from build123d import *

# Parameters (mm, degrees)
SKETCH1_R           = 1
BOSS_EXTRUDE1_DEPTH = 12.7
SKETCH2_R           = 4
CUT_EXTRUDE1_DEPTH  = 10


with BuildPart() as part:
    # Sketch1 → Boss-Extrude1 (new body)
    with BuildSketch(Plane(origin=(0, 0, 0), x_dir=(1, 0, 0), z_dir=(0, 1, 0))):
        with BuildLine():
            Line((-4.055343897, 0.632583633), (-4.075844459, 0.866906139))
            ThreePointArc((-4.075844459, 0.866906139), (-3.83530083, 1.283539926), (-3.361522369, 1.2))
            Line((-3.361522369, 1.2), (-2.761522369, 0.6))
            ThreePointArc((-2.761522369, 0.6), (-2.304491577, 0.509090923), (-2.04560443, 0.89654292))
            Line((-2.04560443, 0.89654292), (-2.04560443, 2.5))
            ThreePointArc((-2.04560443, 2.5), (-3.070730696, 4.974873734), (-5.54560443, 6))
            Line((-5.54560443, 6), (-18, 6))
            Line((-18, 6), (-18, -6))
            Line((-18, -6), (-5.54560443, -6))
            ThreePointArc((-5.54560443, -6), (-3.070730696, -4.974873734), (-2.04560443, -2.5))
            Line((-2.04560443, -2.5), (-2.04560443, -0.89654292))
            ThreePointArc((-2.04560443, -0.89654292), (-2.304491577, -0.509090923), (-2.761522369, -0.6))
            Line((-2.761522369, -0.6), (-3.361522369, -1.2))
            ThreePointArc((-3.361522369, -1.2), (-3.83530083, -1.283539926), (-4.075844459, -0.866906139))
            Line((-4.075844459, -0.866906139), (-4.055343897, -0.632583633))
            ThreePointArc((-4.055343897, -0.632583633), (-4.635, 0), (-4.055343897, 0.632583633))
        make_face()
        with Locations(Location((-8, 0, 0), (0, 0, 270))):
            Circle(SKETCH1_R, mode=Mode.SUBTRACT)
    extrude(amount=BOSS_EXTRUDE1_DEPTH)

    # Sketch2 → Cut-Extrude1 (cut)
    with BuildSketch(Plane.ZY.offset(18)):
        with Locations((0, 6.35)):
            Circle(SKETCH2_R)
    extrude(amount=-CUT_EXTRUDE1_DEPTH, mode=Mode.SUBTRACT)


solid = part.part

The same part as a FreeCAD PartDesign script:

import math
import FreeCAD as App
import Part
import Sketcher
Q = App.Units.Quantity

doc = App.newDocument("Part")
body = doc.addObject("PartDesign::Body", "Body")

# Sketch on XZ plane
sketch1 = body.newObject("Sketcher::SketchObject", "Sketch")
sketch1.AttachmentSupport = (doc.getObject("XZ_Plane"), [""])
sketch1.MapMode = "FlatFace"
sketch1.addGeometry([
    Part.LineSegment(App.Vector(-4.06, -0.63, 0), App.Vector(-4.08, -0.87, 0)),  # 0
    Part.ArcOfCircle(Part.Circle(App.Vector(-3.66, -0.9, 0), App.Vector(0, 0, 1), 0.42), math.radians(175), math.radians(315)),  # 1
    Part.LineSegment(App.Vector(-3.36, -1.2, 0), App.Vector(-2.76, -0.6, 0)),  # 2
    Part.ArcOfCircle(Part.Circle(App.Vector(-2.46, -0.9, 0), App.Vector(0, 0, 1), 0.42), math.radians(0), math.radians(135)),  # 3
    Part.LineSegment(App.Vector(-2.05, -0.9, 0), App.Vector(-2.05, -2.5, 0)),  # 4
    Part.ArcOfCircle(Part.Circle(App.Vector(-5.55, -2.5, 0), App.Vector(0, 0, 1), 3.5), math.radians(-90), math.radians(0)),  # 5
    Part.LineSegment(App.Vector(-5.55, -6, 0), App.Vector(-18, -6, 0)),  # 6
    Part.LineSegment(App.Vector(-18, -6, 0), App.Vector(-18, 6, 0)),  # 7
    Part.LineSegment(App.Vector(-18, 6, 0), App.Vector(-5.55, 6, 0)),  # 8
    Part.ArcOfCircle(Part.Circle(App.Vector(-5.55, 2.5, 0), App.Vector(0, 0, 1), 3.5), math.radians(0), math.radians(90)),  # 9
    Part.LineSegment(App.Vector(-2.05, 2.5, 0), App.Vector(-2.05, 0.9, 0)),  # 10
    Part.ArcOfCircle(Part.Circle(App.Vector(-2.46, 0.9, 0), App.Vector(0, 0, 1), 0.42), math.radians(-135), math.radians(0)),  # 11
    Part.LineSegment(App.Vector(-2.76, 0.6, 0), App.Vector(-3.36, 1.2, 0)),  # 12
    Part.ArcOfCircle(Part.Circle(App.Vector(-3.66, 0.9, 0), App.Vector(0, 0, 1), 0.42), math.radians(45), math.radians(185)),  # 13
    Part.LineSegment(App.Vector(-4.08, 0.87, 0), App.Vector(-4.06, 0.63, 0)),  # 14
    Part.ArcOfCircle(Part.Circle(App.Vector(-4, 0, 0), App.Vector(0, 0, 1), 0.64), math.radians(95), math.radians(265)),  # 15
    Part.Circle(App.Vector(-8, 0, 0), App.Vector(0, 0, 1), 1),  # 16
], False)
sketch1.addConstraint([
    Sketcher.Constraint("Tangent", 0, 2, 1, 1),
    Sketcher.Constraint("Tangent", 1, 2, 2, 1),
    Sketcher.Constraint("Tangent", 2, 2, 3, 2),
    Sketcher.Constraint("Tangent", 3, 1, 4, 1),
    Sketcher.Constraint("Tangent", 4, 2, 5, 2),
    Sketcher.Constraint("Tangent", 5, 1, 6, 1),
    Sketcher.Constraint("Coincident", 6, 2, 7, 1),
    Sketcher.Constraint("Coincident", 7, 2, 8, 1),
    Sketcher.Constraint("Tangent", 8, 2, 9, 2),
    Sketcher.Constraint("Tangent", 9, 1, 10, 1),
    Sketcher.Constraint("Tangent", 10, 2, 11, 2),
    Sketcher.Constraint("Tangent", 11, 1, 12, 1),
    Sketcher.Constraint("Tangent", 12, 2, 13, 1),
    Sketcher.Constraint("Tangent", 13, 2, 14, 1),
    Sketcher.Constraint("Coincident", 14, 2, 15, 1),
    Sketcher.Constraint("Coincident", 15, 2, 0, 1),
    Sketcher.Constraint("Vertical", 4),
    Sketcher.Constraint("Horizontal", 6),
    Sketcher.Constraint("Vertical", 7),
    Sketcher.Constraint("Horizontal", 8),
    Sketcher.Constraint("Vertical", 10),
    Sketcher.Constraint("Equal", 1, 3),
    Sketcher.Constraint("Equal", 5, 9),
    Sketcher.Constraint("Equal", 3, 11),
    Sketcher.Constraint("Equal", 11, 13),
    Sketcher.Constraint("Symmetric", 5, 3, 9, 3, -1),
    Sketcher.Constraint("Symmetric", 1, 3, 13, 3, -1),
    Sketcher.Constraint("Symmetric", 14, 2, 15, 2, -1),
    Sketcher.Constraint("PointOnObject", 16, 3, -1),
    Sketcher.Constraint("Perpendicular", 2, 12),
    Sketcher.Constraint("Vertical", 2, 2, 11, 1),
    Sketcher.Constraint("Diameter", 16, 2.0),
    Sketcher.Constraint("Radius", 5, 3.5),
    Sketcher.Constraint("DistanceY", 7, 1, 7, 2, 12.0),
    Sketcher.Constraint("Angle", 0, Q("-95 deg")),
    Sketcher.Constraint("DistanceX", 15, 3, -1, 1, 4.0),
    Sketcher.Constraint("DistanceX", 16, 3, -1, 1, 8.0),
    Sketcher.Constraint("DistanceX", 6, 2, -1, 1, 18.0),
    Sketcher.Constraint("Radius", 15, 0.635),
    Sketcher.Constraint("DistanceY", 1, 2, -1, 1, 1.2),
    Sketcher.Constraint("DistanceY", 2, 2, -1, 1, 0.6),
    Sketcher.Constraint("Radius", 1, 0.419375),
    Sketcher.Constraint("DistanceX", 6, 2, 6, 1, 12.454396),
])
pad1 = body.newObject("PartDesign::Pad", "Pad")
pad1.Profile = sketch1
pad1.Length = 12.7
pad1.Reversed = True

# Sketch on YZ plane
sketch2 = body.newObject("Sketcher::SketchObject", "Sketch001")
sketch2.AttachmentSupport = (doc.getObject("YZ_Plane"), [""])
sketch2.MapMode = "FlatFace"
sketch2.AttachmentOffset = App.Placement(App.Vector(0, 0, -18), App.Rotation())
sketch2.addGeometry(Part.Circle(App.Vector(6.3, 0, 0), App.Vector(0, 0, 1), 4), False)
sketch2.addConstraint([
    Sketcher.Constraint("PointOnObject", 0, 3, -1),
    Sketcher.Constraint("Diameter", 0, 8.0),
    Sketcher.Constraint("DistanceX", -1, 1, 0, 3, 6.35),
])
pocket1 = body.newObject("PartDesign::Pocket", "Pocket")
pocket1.Profile = sketch2
pocket1.Length = 10
pocket1.Reversed = True

doc.recompute()
